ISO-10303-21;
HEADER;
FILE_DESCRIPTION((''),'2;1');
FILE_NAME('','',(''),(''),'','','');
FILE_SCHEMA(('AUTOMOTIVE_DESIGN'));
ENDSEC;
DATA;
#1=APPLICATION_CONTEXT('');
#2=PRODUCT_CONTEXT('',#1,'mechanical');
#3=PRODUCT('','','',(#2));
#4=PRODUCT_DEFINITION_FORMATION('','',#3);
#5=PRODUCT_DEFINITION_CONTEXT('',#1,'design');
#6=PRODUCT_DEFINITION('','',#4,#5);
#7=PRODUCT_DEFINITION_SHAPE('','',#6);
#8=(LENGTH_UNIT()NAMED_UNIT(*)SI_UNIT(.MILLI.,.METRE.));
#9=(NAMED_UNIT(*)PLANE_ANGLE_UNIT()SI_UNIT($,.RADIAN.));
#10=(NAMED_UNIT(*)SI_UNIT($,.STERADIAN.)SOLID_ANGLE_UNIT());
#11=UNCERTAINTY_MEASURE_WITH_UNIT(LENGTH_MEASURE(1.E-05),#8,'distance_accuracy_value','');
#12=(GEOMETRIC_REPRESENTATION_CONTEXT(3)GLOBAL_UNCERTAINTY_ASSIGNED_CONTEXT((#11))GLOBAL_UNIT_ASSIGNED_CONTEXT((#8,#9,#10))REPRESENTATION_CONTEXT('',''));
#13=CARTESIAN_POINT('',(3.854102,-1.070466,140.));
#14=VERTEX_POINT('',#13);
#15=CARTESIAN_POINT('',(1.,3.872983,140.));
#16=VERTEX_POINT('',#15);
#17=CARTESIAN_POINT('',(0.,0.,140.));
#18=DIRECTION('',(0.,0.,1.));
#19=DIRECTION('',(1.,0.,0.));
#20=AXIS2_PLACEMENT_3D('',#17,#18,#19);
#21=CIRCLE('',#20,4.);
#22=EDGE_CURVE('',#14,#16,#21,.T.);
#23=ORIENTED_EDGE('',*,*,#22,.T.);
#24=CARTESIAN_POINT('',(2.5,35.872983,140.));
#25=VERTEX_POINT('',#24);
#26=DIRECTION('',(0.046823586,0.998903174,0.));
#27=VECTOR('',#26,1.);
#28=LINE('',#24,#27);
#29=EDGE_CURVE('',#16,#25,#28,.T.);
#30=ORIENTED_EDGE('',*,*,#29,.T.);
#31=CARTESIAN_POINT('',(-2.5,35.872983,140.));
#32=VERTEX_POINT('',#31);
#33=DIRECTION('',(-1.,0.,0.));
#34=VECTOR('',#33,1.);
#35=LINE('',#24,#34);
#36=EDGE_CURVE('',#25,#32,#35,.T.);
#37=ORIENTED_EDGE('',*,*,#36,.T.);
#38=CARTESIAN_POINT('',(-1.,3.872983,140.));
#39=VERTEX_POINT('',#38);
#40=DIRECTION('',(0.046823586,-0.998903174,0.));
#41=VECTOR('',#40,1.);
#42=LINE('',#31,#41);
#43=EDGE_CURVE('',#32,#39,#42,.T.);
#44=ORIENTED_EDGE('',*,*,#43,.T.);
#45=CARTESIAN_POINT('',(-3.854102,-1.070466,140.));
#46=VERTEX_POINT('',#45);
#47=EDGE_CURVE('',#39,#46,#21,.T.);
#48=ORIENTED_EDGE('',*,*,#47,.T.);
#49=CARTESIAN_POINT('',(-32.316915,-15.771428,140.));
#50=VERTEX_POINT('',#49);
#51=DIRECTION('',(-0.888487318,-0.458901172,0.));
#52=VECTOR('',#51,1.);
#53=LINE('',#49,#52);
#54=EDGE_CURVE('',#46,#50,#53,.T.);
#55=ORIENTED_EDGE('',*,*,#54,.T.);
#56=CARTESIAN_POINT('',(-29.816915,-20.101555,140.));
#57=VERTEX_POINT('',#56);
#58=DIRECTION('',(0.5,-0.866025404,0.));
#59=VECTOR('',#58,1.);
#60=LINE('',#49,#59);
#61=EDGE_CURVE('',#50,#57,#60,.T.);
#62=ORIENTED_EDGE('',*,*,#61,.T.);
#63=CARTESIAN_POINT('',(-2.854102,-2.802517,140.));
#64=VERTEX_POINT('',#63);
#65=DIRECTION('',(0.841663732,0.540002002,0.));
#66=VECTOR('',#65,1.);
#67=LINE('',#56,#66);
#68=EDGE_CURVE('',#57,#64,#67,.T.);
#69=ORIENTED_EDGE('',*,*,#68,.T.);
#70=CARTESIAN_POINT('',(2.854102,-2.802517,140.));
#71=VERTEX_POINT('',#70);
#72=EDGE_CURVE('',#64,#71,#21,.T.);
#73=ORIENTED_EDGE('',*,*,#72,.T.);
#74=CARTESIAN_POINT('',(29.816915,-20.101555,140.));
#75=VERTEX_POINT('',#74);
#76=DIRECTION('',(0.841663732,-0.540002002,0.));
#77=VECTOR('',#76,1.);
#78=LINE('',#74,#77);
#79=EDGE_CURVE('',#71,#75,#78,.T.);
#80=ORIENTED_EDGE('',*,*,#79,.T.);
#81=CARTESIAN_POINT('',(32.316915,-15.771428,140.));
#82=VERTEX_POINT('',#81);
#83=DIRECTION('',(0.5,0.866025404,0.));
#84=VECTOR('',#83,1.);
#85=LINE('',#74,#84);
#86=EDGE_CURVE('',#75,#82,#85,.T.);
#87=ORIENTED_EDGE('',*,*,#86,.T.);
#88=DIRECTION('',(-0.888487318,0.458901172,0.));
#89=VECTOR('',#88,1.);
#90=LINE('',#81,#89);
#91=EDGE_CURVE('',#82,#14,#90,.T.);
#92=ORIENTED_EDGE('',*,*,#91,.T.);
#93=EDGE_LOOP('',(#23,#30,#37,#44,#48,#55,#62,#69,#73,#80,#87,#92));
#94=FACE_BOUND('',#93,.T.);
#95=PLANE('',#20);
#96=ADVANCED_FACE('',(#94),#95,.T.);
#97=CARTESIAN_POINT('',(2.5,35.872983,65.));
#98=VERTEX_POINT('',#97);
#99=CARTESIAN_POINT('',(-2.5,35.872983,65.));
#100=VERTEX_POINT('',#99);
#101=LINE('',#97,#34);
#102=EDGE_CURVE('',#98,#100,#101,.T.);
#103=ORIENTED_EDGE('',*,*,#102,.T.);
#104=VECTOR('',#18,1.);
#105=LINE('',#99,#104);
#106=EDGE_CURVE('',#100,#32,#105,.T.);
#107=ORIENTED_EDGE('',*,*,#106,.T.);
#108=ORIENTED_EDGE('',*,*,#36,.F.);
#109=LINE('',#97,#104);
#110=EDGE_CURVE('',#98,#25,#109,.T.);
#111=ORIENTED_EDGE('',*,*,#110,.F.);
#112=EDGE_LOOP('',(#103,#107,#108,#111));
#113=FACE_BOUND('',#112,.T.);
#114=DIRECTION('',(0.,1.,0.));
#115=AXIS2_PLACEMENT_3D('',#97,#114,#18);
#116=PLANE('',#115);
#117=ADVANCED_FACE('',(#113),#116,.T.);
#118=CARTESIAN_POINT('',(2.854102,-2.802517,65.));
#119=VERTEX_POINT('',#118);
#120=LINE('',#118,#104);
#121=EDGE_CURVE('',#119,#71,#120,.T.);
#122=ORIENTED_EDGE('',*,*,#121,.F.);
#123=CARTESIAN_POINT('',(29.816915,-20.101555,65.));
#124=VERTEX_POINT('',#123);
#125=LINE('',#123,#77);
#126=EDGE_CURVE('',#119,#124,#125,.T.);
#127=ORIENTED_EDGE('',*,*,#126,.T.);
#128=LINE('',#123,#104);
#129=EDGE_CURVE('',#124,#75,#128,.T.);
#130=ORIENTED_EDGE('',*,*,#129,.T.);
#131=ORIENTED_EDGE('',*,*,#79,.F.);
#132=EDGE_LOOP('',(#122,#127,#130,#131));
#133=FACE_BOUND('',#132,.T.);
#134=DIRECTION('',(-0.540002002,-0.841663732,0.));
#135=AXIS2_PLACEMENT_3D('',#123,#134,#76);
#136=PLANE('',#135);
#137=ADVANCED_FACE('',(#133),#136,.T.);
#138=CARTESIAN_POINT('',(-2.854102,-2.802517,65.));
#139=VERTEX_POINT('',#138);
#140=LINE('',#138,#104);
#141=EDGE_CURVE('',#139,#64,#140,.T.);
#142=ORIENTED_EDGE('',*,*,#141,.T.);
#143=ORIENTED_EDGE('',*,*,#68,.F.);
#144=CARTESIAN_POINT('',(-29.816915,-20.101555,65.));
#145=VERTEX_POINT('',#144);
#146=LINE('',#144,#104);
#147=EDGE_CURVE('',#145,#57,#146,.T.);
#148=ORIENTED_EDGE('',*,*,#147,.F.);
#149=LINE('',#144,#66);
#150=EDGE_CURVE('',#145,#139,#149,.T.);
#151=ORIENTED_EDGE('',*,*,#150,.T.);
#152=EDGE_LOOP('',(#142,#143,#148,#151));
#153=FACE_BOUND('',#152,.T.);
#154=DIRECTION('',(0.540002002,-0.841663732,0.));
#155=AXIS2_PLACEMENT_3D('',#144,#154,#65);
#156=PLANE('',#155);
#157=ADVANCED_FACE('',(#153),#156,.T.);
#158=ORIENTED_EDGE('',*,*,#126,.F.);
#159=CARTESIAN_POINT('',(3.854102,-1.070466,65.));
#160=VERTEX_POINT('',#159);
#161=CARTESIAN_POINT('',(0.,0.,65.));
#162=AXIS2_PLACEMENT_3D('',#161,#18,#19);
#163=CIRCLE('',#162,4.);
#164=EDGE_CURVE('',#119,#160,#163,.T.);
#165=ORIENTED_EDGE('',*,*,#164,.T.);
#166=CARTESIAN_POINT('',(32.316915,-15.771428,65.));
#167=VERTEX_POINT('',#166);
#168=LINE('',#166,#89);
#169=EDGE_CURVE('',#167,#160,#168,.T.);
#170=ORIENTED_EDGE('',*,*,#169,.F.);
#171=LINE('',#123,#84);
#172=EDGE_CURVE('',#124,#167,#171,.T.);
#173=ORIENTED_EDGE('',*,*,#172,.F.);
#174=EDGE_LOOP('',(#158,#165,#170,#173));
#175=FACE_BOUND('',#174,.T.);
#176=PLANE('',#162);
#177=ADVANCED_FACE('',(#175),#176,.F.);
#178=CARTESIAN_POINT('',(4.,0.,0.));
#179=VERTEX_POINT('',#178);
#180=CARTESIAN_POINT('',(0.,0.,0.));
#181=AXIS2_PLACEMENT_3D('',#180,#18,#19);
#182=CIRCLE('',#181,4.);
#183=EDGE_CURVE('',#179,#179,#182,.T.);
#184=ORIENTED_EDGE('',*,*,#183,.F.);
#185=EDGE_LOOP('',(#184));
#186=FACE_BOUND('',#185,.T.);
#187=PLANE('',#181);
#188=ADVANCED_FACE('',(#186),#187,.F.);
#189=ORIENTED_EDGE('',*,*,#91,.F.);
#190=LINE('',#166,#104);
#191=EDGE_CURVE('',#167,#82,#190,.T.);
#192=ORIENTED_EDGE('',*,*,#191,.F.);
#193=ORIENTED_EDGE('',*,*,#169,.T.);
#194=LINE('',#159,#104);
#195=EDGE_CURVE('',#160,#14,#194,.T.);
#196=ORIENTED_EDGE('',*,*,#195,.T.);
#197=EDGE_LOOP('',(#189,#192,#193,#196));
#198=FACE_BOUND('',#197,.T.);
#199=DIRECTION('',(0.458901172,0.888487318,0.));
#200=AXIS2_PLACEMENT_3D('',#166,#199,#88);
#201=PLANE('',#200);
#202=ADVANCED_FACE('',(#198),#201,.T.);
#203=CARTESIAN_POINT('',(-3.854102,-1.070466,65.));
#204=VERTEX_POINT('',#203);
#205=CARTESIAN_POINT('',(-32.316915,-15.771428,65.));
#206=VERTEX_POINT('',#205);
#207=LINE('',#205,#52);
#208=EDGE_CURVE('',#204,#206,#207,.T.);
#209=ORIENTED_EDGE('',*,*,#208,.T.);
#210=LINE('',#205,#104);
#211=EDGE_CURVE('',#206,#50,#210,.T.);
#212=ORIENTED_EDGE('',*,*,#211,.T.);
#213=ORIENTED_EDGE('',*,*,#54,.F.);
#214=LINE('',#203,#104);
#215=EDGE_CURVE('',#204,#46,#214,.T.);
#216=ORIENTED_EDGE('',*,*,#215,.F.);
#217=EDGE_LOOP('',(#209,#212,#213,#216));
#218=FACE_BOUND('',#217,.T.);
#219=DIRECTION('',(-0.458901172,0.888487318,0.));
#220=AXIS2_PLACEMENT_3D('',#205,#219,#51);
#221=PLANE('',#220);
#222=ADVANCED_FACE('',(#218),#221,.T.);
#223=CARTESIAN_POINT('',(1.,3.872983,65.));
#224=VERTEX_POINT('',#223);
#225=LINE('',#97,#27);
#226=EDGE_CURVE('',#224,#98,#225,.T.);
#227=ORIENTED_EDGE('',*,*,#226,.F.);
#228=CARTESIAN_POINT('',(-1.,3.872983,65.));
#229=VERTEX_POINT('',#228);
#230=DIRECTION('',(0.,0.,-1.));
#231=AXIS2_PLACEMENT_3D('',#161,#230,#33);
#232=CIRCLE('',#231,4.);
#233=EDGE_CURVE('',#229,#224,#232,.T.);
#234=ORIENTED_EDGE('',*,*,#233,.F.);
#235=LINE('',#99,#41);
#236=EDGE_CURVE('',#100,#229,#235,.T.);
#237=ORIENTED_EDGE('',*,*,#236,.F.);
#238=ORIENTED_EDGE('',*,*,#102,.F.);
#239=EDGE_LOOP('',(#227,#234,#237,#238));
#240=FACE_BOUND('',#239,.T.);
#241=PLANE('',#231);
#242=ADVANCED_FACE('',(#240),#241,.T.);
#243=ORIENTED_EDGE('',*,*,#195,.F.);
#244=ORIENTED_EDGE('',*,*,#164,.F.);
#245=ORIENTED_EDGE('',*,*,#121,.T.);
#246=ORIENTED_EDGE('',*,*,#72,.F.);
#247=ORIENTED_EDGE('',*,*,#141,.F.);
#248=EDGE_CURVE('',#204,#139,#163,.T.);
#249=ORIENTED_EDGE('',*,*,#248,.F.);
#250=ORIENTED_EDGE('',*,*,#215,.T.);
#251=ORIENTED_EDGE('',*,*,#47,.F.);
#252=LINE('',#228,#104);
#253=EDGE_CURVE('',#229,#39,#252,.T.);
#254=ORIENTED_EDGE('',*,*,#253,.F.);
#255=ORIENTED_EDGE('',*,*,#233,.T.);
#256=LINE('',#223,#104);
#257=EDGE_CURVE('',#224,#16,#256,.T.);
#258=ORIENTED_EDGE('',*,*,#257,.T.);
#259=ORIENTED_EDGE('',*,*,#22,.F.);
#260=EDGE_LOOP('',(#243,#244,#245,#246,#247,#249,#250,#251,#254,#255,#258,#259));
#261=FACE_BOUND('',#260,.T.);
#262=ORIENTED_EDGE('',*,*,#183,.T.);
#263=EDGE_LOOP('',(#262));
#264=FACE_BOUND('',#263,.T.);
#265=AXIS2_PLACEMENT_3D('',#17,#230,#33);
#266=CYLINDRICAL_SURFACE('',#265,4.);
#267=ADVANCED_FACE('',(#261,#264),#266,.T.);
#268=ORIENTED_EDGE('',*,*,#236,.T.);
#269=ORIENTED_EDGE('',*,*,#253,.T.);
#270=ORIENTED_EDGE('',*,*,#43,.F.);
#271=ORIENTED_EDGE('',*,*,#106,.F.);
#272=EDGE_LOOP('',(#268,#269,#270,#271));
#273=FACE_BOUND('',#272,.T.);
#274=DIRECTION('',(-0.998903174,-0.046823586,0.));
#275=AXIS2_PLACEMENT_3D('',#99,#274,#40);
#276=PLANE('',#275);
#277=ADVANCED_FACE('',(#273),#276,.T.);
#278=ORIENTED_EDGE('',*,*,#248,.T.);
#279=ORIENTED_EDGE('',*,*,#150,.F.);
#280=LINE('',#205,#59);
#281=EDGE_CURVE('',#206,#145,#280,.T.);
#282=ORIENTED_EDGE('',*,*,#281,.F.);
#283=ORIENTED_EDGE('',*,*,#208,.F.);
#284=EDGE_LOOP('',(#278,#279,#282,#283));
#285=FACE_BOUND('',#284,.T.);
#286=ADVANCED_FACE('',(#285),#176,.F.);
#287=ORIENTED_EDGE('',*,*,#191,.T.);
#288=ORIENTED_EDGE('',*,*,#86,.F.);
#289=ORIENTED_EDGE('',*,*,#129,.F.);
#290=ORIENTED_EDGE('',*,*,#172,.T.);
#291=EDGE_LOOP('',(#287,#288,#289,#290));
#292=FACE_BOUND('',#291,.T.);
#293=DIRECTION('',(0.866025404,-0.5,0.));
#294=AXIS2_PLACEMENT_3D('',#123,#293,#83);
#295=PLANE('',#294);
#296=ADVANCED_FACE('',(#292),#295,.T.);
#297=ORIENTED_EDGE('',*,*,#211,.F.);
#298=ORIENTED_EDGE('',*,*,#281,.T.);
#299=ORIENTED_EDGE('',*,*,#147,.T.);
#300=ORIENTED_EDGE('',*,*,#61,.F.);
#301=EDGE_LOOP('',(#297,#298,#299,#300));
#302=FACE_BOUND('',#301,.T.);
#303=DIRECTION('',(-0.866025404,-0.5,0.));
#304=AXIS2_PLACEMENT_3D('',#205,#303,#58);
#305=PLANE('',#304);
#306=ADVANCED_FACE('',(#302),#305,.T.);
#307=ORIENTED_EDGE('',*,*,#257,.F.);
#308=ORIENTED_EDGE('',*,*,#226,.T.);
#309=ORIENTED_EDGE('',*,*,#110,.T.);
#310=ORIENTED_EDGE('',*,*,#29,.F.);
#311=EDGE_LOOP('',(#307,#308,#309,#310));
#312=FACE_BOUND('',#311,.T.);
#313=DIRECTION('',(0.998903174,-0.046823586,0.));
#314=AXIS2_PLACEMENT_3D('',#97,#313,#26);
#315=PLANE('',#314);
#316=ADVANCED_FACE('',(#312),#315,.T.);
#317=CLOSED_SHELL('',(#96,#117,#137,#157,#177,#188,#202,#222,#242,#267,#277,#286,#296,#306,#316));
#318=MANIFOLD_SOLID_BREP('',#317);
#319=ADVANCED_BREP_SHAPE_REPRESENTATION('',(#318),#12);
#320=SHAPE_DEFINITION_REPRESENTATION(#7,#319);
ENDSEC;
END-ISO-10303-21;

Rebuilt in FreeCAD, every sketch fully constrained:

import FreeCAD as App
import Part
import Sketcher

V = App.Vector
Q = App.Units.Quantity


def add_polygon(sketch, points):
    """Adds a closed chain of lines whose ends are joined by coincident constraints."""
    first, n = sketch.GeometryCount, len(points)
    for a, b in zip(points, points[1:] + points[:1]):
        sketch.addGeometry(Part.LineSegment(App.Vector(*a, 0), App.Vector(*b, 0)), False)
    for i in range(n):
        sketch.addConstraint(Sketcher.Constraint("Coincident", first + i, 2, first + (i + 1) % n, 1))

doc = App.newDocument("Part")
body = doc.addObject("PartDesign::Body", "Body")

# Sketch on XY plane
sketch1 = doc.addObject("Sketcher::SketchObject", "Sketch")
body.addObject(sketch1)
sketch1.AttachmentSupport = (doc.XY_Plane, [""])
sketch1.MapMode = "FlatFace"
sketch1.addGeometry(Part.Circle(V(0, 0, 0), V(0, 0, 1), 4), False)
sketch1.addConstraint([
    Sketcher.Constraint("Coincident", 0, 3, -1, 1),
    Sketcher.Constraint("Diameter", 0, 8.0),
])
pad1 = doc.addObject("PartDesign::Pad", "Pad")
body.addObject(pad1)
pad1.Profile = sketch1
pad1.Length = 140

# Sketch on XY plane
sketch2 = doc.addObject("Sketcher::SketchObject", "Sketch001")
body.addObject(sketch2)
sketch2.AttachmentSupport = (doc.XY_Plane, [""])
sketch2.MapMode = "FlatFace"
sketch2.AttachmentOffset = App.Placement(V(0, 0, 140), App.Rotation())
add_polygon(sketch2, [(2.5, 35.9), (-2.5, 35.9), (-1, 3.9), (1, 3.9)])  # lines 0-3
add_polygon(sketch2, [(32.3, -15.8), (3.9, -1.1), (2.9, -2.8), (29.8, -20.1)])  # lines 4-7
add_polygon(sketch2, [(-29.8, -20.1), (-2.9, -2.8), (-3.9, -1.1), (-32.3, -15.8)])  # lines 8-11
sketch2.addConstraint([
    Sketcher.Constraint("Horizontal", 0),
    Sketcher.Constraint("Horizontal", 2),
    Sketcher.Constraint("Symmetric", 5, 2, 8, 2, -2),
    Sketcher.Constraint("Symmetric", 4, 2, 9, 2, -2),
    Sketcher.Constraint("Symmetric", 7, 2, 10, 2, -2),
    Sketcher.Constraint("Symmetric", 6, 2, 11, 2, -2),
    Sketcher.Constraint("Parallel", 5, 7),
    Sketcher.Constraint("Equal", 1, 3),
    Sketcher.Constraint("Equal", 3, 4),
    Sketcher.Constraint("Equal", 4, 6),
    Sketcher.Constraint("DistanceX", 0, 2, 0, 1, 5.0),
    Sketcher.Constraint("DistanceX", 2, 1, 2, 2, 2.0),
    Sketcher.Constraint("Angle", 5, Q("-120 deg")),
    Sketcher.Constraint("Distance", 5, 2.0),
    Sketcher.Constraint("Distance", 7, 5.0),
    Sketcher.Constraint("DistanceX", 1, 2, -1, 1, 1.0),
    Sketcher.Constraint("DistanceY", 1, 2, 0, 2, 32.0),
    Sketcher.Constraint("DistanceX", -1, 1, 4, 2, 3.854102),
    Sketcher.Constraint("DistanceY", 5, 2, 2, 2, 6.6755),
    Sketcher.Constraint("DistanceY", 7, 2, -1, 1, 15.771428),
])
pad2 = doc.addObject("PartDesign::Pad", "Pad001")
body.addObject(pad2)
pad2.Profile = sketch2
pad2.Length = 75
pad2.Reversed = True

doc.recompute()
